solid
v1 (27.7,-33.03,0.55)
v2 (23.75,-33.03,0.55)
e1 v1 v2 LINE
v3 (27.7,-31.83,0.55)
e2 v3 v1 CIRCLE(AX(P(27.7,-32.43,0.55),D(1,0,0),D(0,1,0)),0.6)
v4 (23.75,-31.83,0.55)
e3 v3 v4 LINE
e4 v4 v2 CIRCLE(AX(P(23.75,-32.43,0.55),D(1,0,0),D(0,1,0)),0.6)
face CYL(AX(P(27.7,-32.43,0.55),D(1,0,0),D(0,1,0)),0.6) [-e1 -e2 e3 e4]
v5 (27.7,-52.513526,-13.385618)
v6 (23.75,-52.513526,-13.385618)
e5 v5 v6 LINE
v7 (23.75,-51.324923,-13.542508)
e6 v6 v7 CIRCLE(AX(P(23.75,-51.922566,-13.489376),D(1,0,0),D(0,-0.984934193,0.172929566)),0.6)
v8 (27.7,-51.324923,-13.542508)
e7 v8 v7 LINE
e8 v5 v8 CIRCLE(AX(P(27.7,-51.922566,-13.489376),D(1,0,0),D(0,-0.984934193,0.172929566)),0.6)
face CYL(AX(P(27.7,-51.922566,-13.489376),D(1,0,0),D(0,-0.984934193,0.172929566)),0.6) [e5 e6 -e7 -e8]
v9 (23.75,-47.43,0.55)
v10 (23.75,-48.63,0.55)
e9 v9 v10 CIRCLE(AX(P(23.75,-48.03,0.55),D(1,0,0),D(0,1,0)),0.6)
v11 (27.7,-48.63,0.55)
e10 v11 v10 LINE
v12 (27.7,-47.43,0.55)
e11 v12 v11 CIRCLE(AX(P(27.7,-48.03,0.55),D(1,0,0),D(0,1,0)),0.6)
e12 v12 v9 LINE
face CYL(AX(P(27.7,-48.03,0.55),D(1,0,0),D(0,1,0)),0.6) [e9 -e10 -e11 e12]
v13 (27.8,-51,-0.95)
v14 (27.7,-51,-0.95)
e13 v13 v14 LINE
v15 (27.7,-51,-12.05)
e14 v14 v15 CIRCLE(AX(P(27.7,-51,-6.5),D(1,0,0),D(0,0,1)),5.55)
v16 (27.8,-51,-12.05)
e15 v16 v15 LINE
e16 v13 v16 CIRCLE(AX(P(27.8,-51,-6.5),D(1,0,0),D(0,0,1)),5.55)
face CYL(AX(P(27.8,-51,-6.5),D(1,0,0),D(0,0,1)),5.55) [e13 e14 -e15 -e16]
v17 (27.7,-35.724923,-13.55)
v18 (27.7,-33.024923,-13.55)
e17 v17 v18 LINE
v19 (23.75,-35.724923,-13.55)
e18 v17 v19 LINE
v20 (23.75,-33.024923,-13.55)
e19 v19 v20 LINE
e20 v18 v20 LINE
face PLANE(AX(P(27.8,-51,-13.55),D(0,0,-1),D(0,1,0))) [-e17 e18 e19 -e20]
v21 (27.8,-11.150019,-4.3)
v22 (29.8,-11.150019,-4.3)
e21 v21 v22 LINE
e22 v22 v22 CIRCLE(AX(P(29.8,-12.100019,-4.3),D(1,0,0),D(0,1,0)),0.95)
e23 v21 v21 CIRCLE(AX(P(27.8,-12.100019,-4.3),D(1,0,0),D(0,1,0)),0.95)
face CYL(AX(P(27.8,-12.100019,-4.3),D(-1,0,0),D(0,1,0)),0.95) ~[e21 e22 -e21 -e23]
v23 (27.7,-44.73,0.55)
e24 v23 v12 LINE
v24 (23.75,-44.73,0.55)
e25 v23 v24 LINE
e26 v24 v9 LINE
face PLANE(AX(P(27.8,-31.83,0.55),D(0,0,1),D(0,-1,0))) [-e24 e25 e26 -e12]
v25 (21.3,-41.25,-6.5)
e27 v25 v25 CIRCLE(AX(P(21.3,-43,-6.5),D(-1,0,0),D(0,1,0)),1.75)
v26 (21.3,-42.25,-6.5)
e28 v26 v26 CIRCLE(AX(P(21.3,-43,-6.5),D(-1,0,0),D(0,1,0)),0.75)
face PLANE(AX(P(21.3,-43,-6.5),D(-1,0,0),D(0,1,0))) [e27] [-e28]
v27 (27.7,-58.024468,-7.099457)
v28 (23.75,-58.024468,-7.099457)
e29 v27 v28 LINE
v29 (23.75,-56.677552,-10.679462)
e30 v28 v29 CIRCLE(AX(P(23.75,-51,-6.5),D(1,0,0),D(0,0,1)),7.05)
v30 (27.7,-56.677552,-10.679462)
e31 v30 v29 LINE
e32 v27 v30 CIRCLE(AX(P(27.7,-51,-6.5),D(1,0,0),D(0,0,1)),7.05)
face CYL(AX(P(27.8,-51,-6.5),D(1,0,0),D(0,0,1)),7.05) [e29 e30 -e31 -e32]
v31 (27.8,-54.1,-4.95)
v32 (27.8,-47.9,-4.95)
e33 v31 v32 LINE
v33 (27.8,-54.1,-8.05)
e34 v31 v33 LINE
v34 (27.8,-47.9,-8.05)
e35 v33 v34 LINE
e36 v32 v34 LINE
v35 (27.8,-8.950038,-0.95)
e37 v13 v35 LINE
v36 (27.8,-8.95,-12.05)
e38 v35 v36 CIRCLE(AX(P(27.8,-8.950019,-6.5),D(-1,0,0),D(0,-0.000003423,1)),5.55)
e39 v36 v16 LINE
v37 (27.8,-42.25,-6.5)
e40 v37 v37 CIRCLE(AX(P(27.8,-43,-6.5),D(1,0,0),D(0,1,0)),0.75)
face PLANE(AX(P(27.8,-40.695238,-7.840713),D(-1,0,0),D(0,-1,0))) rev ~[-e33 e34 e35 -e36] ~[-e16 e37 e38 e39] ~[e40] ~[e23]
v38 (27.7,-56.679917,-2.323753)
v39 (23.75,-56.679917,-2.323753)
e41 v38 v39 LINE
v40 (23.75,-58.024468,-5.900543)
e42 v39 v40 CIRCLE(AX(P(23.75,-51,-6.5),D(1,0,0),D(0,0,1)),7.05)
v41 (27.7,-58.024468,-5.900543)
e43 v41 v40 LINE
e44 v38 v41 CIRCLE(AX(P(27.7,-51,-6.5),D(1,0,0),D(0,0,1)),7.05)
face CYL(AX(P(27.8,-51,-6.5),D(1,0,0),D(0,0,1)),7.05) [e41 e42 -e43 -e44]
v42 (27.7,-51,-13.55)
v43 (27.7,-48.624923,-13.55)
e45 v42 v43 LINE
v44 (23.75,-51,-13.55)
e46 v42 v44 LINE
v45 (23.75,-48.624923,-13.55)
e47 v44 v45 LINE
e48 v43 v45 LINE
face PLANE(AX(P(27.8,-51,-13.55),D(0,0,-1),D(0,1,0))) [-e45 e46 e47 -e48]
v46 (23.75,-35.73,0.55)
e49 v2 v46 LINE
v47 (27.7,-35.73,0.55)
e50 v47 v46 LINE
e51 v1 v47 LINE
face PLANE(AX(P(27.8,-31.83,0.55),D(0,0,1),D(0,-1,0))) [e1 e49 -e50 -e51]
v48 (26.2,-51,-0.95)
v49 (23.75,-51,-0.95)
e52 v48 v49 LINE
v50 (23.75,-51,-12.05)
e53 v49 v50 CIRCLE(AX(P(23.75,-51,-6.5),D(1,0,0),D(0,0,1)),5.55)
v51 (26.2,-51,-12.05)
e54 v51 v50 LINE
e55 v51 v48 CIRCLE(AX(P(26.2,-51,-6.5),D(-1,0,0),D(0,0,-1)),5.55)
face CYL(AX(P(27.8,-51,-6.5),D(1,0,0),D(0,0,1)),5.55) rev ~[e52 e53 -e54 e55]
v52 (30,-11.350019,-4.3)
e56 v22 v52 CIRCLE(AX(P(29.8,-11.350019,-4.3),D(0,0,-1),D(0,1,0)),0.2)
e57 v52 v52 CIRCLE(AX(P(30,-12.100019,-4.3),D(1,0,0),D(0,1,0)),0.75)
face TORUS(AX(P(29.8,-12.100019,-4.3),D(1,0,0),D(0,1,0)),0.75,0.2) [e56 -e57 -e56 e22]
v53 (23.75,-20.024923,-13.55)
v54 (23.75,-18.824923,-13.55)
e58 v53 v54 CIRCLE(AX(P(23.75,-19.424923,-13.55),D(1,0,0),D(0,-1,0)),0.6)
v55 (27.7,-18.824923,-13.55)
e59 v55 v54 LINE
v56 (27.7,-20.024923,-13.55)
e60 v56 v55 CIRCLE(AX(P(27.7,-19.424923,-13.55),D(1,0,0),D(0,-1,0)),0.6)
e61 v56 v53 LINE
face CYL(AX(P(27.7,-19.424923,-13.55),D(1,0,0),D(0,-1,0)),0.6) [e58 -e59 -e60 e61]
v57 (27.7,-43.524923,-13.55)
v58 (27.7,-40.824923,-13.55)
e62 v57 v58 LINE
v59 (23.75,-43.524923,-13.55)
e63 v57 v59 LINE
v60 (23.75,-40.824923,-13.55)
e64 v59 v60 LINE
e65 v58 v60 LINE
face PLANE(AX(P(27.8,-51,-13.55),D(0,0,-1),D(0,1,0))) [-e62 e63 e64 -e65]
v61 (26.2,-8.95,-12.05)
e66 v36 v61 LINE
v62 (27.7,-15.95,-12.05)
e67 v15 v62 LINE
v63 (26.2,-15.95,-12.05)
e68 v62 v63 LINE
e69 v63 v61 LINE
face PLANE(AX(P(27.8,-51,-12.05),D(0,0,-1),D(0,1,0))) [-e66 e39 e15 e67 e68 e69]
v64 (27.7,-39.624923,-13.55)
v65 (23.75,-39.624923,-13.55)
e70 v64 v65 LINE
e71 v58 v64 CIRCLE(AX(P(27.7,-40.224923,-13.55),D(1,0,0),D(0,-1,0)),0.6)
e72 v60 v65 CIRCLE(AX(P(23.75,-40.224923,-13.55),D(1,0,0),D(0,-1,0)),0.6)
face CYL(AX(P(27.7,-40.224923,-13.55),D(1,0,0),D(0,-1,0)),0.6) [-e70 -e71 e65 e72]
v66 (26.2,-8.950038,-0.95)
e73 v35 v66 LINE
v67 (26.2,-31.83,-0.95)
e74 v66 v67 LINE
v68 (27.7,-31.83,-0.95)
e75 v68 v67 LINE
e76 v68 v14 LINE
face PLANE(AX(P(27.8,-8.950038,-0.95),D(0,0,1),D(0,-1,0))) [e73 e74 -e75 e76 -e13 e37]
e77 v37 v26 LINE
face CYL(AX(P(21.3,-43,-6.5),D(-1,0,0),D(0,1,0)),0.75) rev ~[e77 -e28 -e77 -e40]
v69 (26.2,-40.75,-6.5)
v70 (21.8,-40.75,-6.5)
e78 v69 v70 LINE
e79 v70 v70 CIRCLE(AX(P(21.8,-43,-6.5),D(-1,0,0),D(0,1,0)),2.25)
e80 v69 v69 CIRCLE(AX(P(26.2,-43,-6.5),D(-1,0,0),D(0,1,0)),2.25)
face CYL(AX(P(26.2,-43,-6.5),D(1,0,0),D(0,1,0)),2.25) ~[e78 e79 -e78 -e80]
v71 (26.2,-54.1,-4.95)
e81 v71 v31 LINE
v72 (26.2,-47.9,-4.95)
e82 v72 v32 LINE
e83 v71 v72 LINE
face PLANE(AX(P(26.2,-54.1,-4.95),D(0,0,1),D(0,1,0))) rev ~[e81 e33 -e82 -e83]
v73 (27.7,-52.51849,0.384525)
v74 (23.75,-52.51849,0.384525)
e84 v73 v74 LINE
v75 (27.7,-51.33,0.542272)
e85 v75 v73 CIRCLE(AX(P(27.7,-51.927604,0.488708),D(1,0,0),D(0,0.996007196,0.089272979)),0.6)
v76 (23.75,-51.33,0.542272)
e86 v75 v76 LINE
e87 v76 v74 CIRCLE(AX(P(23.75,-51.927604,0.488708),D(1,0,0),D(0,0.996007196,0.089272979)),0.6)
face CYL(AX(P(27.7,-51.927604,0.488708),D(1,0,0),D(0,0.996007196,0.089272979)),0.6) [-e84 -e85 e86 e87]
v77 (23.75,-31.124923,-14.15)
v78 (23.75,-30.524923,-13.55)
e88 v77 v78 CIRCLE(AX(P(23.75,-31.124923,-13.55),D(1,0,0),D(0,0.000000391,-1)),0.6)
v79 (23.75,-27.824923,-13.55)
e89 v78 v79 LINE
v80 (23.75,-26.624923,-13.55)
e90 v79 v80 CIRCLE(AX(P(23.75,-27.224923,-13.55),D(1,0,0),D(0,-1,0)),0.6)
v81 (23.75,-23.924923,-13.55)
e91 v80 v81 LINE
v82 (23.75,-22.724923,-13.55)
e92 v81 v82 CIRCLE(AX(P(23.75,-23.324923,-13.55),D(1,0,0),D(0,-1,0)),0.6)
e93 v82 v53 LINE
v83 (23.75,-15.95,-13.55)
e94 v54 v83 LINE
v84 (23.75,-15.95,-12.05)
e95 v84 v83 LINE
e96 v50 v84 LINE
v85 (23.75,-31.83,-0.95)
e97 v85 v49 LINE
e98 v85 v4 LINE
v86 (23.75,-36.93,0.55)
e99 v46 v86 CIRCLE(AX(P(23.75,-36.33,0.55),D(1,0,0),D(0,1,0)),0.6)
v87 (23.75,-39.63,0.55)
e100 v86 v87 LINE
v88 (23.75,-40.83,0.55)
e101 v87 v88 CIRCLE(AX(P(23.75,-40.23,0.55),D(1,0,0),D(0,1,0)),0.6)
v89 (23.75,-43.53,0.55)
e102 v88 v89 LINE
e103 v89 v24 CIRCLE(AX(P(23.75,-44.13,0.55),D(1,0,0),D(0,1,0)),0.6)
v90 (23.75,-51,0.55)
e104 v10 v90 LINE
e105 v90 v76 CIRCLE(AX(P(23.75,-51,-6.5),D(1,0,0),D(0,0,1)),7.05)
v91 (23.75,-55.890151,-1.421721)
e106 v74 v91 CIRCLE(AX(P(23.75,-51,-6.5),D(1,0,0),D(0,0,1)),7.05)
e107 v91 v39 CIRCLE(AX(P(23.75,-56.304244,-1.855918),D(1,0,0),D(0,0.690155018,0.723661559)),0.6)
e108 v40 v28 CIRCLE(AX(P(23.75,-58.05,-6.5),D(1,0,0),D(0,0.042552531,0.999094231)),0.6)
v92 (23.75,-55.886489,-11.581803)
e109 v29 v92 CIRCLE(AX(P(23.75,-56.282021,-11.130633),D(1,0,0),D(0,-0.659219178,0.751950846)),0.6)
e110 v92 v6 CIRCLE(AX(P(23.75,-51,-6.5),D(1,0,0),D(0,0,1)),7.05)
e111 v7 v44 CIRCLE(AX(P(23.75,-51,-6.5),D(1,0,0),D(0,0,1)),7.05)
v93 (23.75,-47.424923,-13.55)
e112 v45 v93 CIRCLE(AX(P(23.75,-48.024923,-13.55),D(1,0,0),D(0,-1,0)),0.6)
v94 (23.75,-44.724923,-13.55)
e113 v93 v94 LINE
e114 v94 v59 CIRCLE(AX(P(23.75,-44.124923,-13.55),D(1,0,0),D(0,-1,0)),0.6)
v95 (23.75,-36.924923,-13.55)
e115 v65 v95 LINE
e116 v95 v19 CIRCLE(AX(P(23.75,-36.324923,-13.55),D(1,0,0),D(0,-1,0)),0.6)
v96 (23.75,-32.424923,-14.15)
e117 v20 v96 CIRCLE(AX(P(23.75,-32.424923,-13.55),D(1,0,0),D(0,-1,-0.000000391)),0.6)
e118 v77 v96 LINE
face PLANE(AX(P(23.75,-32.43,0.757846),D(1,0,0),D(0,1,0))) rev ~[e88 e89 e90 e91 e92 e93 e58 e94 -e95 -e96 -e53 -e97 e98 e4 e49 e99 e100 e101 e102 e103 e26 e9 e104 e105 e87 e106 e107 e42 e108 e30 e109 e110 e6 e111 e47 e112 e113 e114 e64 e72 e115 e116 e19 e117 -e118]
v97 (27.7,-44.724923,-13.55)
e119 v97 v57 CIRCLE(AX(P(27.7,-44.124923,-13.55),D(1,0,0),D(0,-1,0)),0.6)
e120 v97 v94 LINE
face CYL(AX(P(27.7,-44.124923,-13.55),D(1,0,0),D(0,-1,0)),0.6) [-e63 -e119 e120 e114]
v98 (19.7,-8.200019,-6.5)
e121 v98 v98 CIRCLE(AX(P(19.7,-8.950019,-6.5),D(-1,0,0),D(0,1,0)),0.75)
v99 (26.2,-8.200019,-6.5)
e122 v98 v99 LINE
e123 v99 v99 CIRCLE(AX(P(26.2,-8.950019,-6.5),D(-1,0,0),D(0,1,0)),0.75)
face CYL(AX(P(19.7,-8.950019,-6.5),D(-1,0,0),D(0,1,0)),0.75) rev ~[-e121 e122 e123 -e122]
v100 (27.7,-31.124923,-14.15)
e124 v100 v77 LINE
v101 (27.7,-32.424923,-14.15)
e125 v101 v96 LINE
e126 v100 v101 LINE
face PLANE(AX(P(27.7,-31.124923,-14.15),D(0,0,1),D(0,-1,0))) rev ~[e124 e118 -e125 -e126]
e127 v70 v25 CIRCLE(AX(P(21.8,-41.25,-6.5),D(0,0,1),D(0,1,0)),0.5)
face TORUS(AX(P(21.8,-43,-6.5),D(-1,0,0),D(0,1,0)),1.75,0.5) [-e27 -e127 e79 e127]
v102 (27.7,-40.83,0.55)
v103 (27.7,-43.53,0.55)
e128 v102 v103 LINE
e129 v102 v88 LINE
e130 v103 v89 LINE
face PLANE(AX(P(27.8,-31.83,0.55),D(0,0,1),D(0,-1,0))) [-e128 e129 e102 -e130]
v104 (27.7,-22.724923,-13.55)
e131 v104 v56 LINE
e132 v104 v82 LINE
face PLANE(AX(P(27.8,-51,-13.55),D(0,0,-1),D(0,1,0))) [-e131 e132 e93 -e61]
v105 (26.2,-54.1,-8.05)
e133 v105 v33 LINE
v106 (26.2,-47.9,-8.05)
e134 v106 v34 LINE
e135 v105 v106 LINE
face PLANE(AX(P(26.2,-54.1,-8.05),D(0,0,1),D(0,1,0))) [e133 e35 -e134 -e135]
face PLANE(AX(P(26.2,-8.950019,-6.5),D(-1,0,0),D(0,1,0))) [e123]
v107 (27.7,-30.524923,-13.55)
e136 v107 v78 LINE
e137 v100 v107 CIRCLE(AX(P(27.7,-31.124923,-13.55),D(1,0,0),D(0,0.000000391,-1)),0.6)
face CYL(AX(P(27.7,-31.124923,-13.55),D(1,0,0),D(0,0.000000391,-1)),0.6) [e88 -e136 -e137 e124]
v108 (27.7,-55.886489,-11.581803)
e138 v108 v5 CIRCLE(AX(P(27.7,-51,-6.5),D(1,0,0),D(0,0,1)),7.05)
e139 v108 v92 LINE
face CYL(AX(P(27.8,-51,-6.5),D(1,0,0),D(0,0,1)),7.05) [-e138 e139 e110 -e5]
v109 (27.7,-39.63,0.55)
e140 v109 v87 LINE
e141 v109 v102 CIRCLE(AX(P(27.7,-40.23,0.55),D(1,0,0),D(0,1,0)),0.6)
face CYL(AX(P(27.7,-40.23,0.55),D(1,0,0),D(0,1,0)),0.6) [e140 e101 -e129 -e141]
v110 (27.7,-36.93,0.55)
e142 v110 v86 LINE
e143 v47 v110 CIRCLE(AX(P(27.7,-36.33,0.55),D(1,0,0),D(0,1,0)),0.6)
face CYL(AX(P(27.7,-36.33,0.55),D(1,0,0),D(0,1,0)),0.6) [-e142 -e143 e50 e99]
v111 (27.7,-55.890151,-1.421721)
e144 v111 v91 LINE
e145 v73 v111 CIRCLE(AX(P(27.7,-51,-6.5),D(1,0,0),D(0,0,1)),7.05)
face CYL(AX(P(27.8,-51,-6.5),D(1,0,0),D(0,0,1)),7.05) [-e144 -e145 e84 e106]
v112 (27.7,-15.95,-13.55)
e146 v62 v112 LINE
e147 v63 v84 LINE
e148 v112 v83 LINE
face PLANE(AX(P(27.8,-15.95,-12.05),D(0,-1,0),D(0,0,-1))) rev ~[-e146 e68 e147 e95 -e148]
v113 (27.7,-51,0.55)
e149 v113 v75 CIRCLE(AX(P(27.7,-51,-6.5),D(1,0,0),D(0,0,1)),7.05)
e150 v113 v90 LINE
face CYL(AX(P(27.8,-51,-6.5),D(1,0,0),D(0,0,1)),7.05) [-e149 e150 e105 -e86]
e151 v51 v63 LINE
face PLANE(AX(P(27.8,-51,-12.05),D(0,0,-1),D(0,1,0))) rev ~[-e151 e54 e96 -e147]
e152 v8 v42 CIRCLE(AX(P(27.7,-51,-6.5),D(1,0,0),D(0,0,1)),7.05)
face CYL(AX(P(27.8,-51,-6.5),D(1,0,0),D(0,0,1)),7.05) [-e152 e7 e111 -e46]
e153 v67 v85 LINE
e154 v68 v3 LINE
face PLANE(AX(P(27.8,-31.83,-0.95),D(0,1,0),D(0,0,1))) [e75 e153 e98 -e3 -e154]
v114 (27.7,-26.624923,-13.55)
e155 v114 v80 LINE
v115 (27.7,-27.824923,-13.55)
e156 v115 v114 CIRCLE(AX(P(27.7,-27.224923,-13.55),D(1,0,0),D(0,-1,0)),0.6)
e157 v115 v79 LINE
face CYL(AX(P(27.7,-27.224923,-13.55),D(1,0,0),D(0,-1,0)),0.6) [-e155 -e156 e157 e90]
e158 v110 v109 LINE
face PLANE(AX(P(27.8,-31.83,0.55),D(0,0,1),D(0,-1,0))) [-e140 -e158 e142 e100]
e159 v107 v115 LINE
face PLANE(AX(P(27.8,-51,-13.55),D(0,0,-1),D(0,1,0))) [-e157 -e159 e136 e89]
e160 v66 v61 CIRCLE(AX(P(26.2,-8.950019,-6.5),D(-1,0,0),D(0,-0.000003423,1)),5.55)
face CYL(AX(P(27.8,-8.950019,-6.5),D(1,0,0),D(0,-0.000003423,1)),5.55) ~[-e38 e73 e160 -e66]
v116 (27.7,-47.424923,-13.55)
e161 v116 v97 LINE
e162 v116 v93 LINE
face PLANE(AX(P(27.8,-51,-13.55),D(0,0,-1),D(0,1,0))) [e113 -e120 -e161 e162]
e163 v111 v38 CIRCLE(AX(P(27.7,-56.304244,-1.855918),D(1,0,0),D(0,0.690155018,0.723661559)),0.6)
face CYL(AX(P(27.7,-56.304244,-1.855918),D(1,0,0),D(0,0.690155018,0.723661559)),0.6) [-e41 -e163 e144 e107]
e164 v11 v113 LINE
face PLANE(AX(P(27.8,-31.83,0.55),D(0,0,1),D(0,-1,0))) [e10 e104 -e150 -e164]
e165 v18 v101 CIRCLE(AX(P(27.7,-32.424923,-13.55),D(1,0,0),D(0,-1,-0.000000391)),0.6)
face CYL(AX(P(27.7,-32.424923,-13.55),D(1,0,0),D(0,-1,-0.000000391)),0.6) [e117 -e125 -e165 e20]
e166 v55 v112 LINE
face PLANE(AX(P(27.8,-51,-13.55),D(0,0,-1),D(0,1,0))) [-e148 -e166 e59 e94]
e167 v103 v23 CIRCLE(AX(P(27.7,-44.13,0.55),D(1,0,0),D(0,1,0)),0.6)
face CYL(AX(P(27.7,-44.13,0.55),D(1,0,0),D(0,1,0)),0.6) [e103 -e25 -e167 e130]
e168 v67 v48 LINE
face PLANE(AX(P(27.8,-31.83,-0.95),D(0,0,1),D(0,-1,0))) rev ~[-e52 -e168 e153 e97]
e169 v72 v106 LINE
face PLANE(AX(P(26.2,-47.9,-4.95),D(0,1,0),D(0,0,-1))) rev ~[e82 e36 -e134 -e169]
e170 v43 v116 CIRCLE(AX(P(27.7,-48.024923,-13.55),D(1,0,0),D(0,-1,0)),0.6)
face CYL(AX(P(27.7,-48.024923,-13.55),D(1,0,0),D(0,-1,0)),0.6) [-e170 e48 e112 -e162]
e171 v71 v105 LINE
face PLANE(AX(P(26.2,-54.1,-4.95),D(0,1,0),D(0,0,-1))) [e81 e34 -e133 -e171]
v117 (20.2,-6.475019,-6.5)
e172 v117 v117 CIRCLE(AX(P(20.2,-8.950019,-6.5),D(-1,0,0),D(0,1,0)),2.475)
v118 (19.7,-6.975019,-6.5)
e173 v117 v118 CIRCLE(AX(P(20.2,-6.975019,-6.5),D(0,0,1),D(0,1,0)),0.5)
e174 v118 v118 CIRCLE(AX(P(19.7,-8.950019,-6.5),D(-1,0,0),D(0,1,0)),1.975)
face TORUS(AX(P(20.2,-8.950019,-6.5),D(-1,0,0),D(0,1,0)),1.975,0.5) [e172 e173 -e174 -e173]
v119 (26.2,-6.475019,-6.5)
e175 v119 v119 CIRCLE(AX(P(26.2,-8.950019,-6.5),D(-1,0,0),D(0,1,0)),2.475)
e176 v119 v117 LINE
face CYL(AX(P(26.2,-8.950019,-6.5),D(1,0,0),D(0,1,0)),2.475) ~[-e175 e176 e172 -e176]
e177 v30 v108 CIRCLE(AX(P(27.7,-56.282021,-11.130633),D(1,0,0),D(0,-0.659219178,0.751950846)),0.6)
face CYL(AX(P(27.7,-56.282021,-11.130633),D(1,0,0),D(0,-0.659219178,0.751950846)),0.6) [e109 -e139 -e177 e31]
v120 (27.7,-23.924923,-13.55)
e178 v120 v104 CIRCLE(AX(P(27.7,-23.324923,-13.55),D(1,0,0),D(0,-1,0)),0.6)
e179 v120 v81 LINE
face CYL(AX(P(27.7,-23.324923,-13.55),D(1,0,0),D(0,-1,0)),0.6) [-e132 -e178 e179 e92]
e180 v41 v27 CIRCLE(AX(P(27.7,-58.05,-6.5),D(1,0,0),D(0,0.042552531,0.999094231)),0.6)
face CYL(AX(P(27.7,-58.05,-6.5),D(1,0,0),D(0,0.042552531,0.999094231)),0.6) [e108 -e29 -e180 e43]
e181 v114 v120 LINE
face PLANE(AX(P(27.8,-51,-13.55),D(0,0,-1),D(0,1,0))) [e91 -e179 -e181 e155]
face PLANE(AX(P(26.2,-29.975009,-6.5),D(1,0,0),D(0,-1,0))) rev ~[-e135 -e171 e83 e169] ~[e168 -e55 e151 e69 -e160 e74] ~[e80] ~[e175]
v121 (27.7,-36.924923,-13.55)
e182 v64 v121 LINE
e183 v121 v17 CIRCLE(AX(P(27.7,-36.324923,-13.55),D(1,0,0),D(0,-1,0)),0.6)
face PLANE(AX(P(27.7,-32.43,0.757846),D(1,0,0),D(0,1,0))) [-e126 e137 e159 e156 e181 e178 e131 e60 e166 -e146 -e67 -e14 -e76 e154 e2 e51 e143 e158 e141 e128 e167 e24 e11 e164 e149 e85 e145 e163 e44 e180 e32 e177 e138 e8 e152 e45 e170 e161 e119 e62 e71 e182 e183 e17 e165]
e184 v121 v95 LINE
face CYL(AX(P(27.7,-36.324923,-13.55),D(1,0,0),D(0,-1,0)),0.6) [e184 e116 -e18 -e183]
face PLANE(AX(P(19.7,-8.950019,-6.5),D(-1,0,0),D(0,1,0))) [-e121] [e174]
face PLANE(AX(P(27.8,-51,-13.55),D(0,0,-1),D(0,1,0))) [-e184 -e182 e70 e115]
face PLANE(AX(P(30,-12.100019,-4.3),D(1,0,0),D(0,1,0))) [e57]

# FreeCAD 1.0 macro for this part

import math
import FreeCAD as App
import Part
import Sketcher
from FreeCAD import Vector
Q = App.Units.Quantity


def edges_at(feature, points):
    """Names of the edges that pass closest to the given points."""
    edges = feature.Shape.Edges
    near = lambda p: min(range(len(edges)), key=lambda i: edges[i].distToShape(Part.Vertex(*p))[0])
    return sorted({f"Edge{near(p) + 1}" for p in points})

doc = App.newDocument("Part")
params = doc.addObject("Spreadsheet::Sheet", "Params")
for row, (alias, value) in enumerate([
    ("sketch1_radius", "5.55 mm"),
    ("sketch1_width", "42.05 mm"),
    ("pad1_length", "1.6 mm"),
    ("sketch2_radius", "7.05 mm"),
    ("sketch2_radius2", "5.55 mm"),
    ("sketch2_width", "19.17 mm"),
    ("sketch2_width2", "35.05 mm"),
    ("pad2_length", "4.05 mm"),
    ("sketch3_radius", "7.05 mm"),
    ("sketch3_radius2", "5.55 mm"),
    ("sketch3_width", "19.17 mm"),
    ("sketch3_width2", "35.05 mm"),
    ("pocket1_length", "0.1 mm"),
    ("sketch4_diameter", "1.5 mm"),
    ("sketch4_width", "6 mm"),
    ("sketch4_height", "3 mm"),
    ("pocket2_length", "1.6 mm"),
    ("sketch5_radius", "0.6 mm"),
    ("sketch5_width", "1.3 mm"),
    ("pad3_length", "3.95 mm"),
    ("sketch6_diameter", "4.5 mm"),
    ("pad4_length", "4.9 mm"),
    ("sketch7_diameter", "1.5 mm"),
    ("pocket3_length", "4.9 mm"),
    ("sketch8_diameter", "4.95 mm"),
    ("pad5_length", "6.5 mm"),
    ("sketch9_diameter", "1.5 mm"),
    ("pocket4_length", "6.5 mm"),
    ("fillet_radius", "0.5 mm"),
    ("sketch10_diameter", "1.9 mm"),
    ("pad6_length", "2.2 mm"),
    ("fillet2_radius", "0.2 mm"),
    ("sketch11_width", "6.2 mm"),
    ("sketch11_height", "3.1 mm"),
    ("pocket5_length", "5 mm"),
], start=1):
    params.set(f"A{row}", alias)
    params.set(f"B{row}", "=" + value)
    params.setAlias(f"B{row}", alias)

body = doc.addObject("PartDesign::Body", "Body")

# Sketch on XY plane
sketch1 = body.newObject("Sketcher::SketchObject", "Sketch")
sketch1.AttachmentSupport = (doc.getObject("XY_Plane"), [""])
sketch1.MapMode = "FlatFace"
sketch1.addGeometry(Part.LineSegment(Vector(42.05, 5.55, 0), Vector(0, 5.55, 0)), False)
sketch1.addGeometry(Part.ArcOfCircle(Part.Circle(Vector(0, 0, 0), Vector(0, 0, 1), 5.55), math.radians(90), math.radians(270)), False)
sketch1.addGeometry(Part.LineSegment(Vector(0, -5.55, 0), Vector(42.049962, -5.55, 0)), False)
sketch1.addGeometry(Part.ArcOfCircle(Part.Circle(Vector(42.049981, 0, 0), Vector(0, 0, 1), 5.55), math.radians(-90.000196), math.radians(89.999804)), False)
sketch1.addConstraint(Sketcher.Constraint("Tangent", 0, 2, 1, 1))
sketch1.addConstraint(Sketcher.Constraint("Tangent", 1, 2, 2, 1))
sketch1.addConstraint(Sketcher.Constraint("Coincident", 2, 2, 3, 1))
sketch1.addConstraint(Sketcher.Constraint("Coincident", 3, 2, 0, 1))
sketch1.addConstraint(Sketcher.Constraint("Horizontal", 0))
sketch1.addConstraint(Sketcher.Constraint("Horizontal", 2))
sketch1.addConstraint(Sketcher.Constraint("Coincident", 1, 3, -1, 1))
sketch1.addConstraint(Sketcher.Constraint("Radius", 1, Q("5.55 mm")))
sketch1.addConstraint(Sketcher.Constraint("DistanceX", 0, 2, 0, 1, Q("42.05 mm")))
sketch1.addConstraint(Sketcher.Constraint("DistanceX", 2, 1, 2, 2, Q("42.049962 mm")))
sketch1.addConstraint(Sketcher.Constraint("DistanceX", -1, 1, 3, 3, Q("42.049981 mm")))
sketch1.setExpression("Constraints[7]", "Params.sketch1_radius")
sketch1.setExpression("Constraints[8]", "Params.sketch1_width")
pad1 = body.newObject("PartDesign::Pad", "Pad")
pad1.Profile = sketch1
pad1.setExpression("Length", "Params.pad1_length")

# Sketch on XY plane
sketch2 = body.newObject("Sketcher::SketchObject", "Sketch001")
sketch2.AttachmentSupport = (doc.getObject("XY_Plane"), [""])
sketch2.MapMode = "FlatFace"
sketch2.addGeometry(Part.LineSegment(Vector(0, -5.55, 0), Vector(19.17, -5.55, 0)), False)
sketch2.addGeometry(Part.LineSegment(Vector(19.17, -5.55, 0), Vector(19.17, -7.05, 0)), False)
sketch2.addGeometry(Part.LineSegment(Vector(19.17, -7.05, 0), Vector(0, -7.05, 0)), False)
sketch2.addGeometry(Part.ArcOfCircle(Part.Circle(Vector(0, 0, 0), Vector(0, 0, 1), 7.05), math.radians(90), math.radians(270)), False)
sketch2.addGeometry(Part.LineSegment(Vector(0, 7.05, 0), Vector(35.05, 7.05, 0)), False)
sketch2.addGeometry(Part.LineSegment(Vector(35.05, 7.05, 0), Vector(35.05, 5.55, 0)), False)
sketch2.addGeometry(Part.LineSegment(Vector(35.05, 5.55, 0), Vector(0, 5.55, 0)), False)
sketch2.addGeometry(Part.ArcOfCircle(Part.Circle(Vector(0, 0, 0), Vector(0, 0, 1), 5.55), math.radians(90), math.radians(270)), False)
sketch2.addConstraint(Sketcher.Constraint("Coincident", 0, 2, 1, 1))
sketch2.addConstraint(Sketcher.Constraint("Coincident", 1, 2, 2, 1))
sketch2.addConstraint(Sketcher.Constraint("Tangent", 2, 2, 3, 2))
sketch2.addConstraint(Sketcher.Constraint("Tangent", 3, 1, 4, 1))
sketch2.addConstraint(Sketcher.Constraint("Coincident", 4, 2, 5, 1))
sketch2.addConstraint(Sketcher.Constraint("Coincident", 5, 2, 6, 1))
sketch2.addConstraint(Sketcher.Constraint("Tangent", 6, 2, 7, 1))
sketch2.addConstraint(Sketcher.Constraint("Tangent", 7, 2, 0, 1))
sketch2.addConstraint(Sketcher.Constraint("Horizontal", 0))
sketch2.addConstraint(Sketcher.Constraint("Vertical", 1))
sketch2.addConstraint(Sketcher.Constraint("Horizontal", 2))
sketch2.addConstraint(Sketcher.Constraint("Horizontal", 4))
sketch2.addConstraint(Sketcher.Constraint("Vertical", 5))
sketch2.addConstraint(Sketcher.Constraint("Horizontal", 6))
sketch2.addConstraint(Sketcher.Constraint("Coincident", 3, 3, -1, 1))
sketch2.addConstraint(Sketcher.Constraint("Coincident", 7, 3, -1, 1))
sketch2.addConstraint(Sketcher.Constraint("Radius", 3, Q("7.05 mm")))
sketch2.addConstraint(Sketcher.Constraint("Radius", 7, Q("5.55 mm")))
sketch2.addConstraint(Sketcher.Constraint("DistanceX", 0, 1, 0, 2, Q("19.17 mm")))
sketch2.addConstraint(Sketcher.Constraint("DistanceX", 4, 1, 4, 2, Q("35.05 mm")))
sketch2.setExpression("Constraints[16]", "Params.sketch2_radius")
sketch2.setExpression("Constraints[17]", "Params.sketch2_radius2")
sketch2.setExpression("Constraints[18]", "Params.sketch2_width")
sketch2.setExpression("Constraints[19]", "Params.sketch2_width2")
pad2 = body.newObject("PartDesign::Pad", "Pad001")
pad2.Profile = sketch2
pad2.setExpression("Length", "Params.pad2_length")

# Sketch on XY plane
sketch3 = body.newObject("Sketcher::SketchObject", "Sketch002")
sketch3.AttachmentSupport = (doc.getObject("XY_Plane"), [""])
sketch3.MapMode = "FlatFace"
sketch3.addGeometry(Part.LineSegment(Vector(0, -5.55, 0), Vector(19.17, -5.55, 0)), False)
sketch3.addGeometry(Part.LineSegment(Vector(19.17, -5.55, 0), Vector(19.17, -7.05, 0)), False)
sketch3.addGeometry(Part.LineSegment(Vector(19.17, -7.05, 0), Vector(0, -7.05, 0)), False)
sketch3.addGeometry(Part.ArcOfCircle(Part.Circle(Vector(0, 0, 0), Vector(0, 0, 1), 7.05), math.radians(90), math.radians(270)), False)
sketch3.addGeometry(Part.LineSegment(Vector(0, 7.05, 0), Vector(35.05, 7.05, 0)), False)
sketch3.addGeometry(Part.LineSegment(Vector(35.05, 7.05, 0), Vector(35.05, 5.55, 0)), False)
sketch3.addGeometry(Part.LineSegment(Vector(35.05, 5.55, 0), Vector(0, 5.55, 0)), False)
sketch3.addGeometry(Part.ArcOfCircle(Part.Circle(Vector(0, 0, 0), Vector(0, 0, 1), 5.55), math.radians(90), math.radians(270)), False)
sketch3.addConstraint(Sketcher.Constraint("Coincident", 0, 2, 1, 1))
sketch3.addConstraint(Sketcher.Constraint("Coincident", 1, 2, 2, 1))
sketch3.addConstraint(Sketcher.Constraint("Tangent", 2, 2, 3, 2))
sketch3.addConstraint(Sketcher.Constraint("Tangent", 3, 1, 4, 1))
sketch3.addConstraint(Sketcher.Constraint("Coincident", 4, 2, 5, 1))
sketch3.addConstraint(Sketcher.Constraint("Coincident", 5, 2, 6, 1))
sketch3.addConstraint(Sketcher.Constraint("Tangent", 6, 2, 7, 1))
sketch3.addConstraint(Sketcher.Constraint("Tangent", 7, 2, 0, 1))
sketch3.addConstraint(Sketcher.Constraint("Horizontal", 0))
sketch3.addConstraint(Sketcher.Constraint("Vertical", 1))
sketch3.addConstraint(Sketcher.Constraint("Horizontal", 2))
sketch3.addConstraint(Sketcher.Constraint("Horizontal", 4))
sketch3.addConstraint(Sketcher.Constraint("Vertical", 5))
sketch3.addConstraint(Sketcher.Constraint("Horizontal", 6))
sketch3.addConstraint(Sketcher.Constraint("Coincident", 3, 3, -1, 1))
sketch3.addConstraint(Sketcher.Constraint("Coincident", 7, 3, -1, 1))
sketch3.addConstraint(Sketcher.Constraint("Radius", 3, Q("7.05 mm")))
sketch3.addConstraint(Sketcher.Constraint("Radius", 7, Q("5.55 mm")))
sketch3.addConstraint(Sketcher.Constraint("DistanceX", 0, 1, 0, 2, Q("19.17 mm")))
sketch3.addConstraint(Sketcher.Constraint("DistanceX", 4, 1, 4, 2, Q("35.05 mm")))
sketch3.setExpression("Constraints[16]", "Params.sketch3_radius")
sketch3.setExpression("Constraints[17]", "Params.sketch3_radius2")
sketch3.setExpression("Constraints[18]", "Params.sketch3_width")
sketch3.setExpression("Constraints[19]", "Params.sketch3_width2")
pocket1 = body.newObject("PartDesign::Pocket", "Pocket")
pocket1.Profile = sketch3
pocket1.setExpression("Length", "Params.pocket1_length")
pocket1.Reversed = True

# Sketch on XY plane
sketch4 = body.newObject("Sketcher::SketchObject", "Sketch003")
sketch4.AttachmentSupport = (doc.getObject("XY_Plane"), [""])
sketch4.MapMode = "FlatFace"
sketch4.addGeometry(Part.Circle(Vector(8, 0, 0), Vector(0, 0, 1), 0.75), False)
sketch4.addGeometry(Part.LineSegment(Vector(-3, -1.5, 0), Vector(-3, 1.5, 0)), False)
sketch4.addGeometry(Part.LineSegment(Vector(-3, 1.5, 0), Vector(3, 1.5, 0)), False)
sketch4.addGeometry(Part.LineSegment(Vector(3, 1.5, 0), Vector(3, -1.5, 0)), False)
sketch4.addGeometry(Part.LineSegment(Vector(3, -1.5, 0), Vector(-3, -1.5, 0)), False)
sketch4.addConstraint(Sketcher.Constraint("Coincident", 1, 2, 2, 1))
sketch4.addConstraint(Sketcher.Constraint("Coincident", 2, 2, 3, 1))
sketch4.addConstraint(Sketcher.Constraint("Coincident", 3, 2, 4, 1))
sketch4.addConstraint(Sketcher.Constraint("Coincident", 4, 2, 1, 1))
sketch4.addConstraint(Sketcher.Constraint("Vertical", 1))
sketch4.addConstraint(Sketcher.Constraint("Horizontal", 2))
sketch4.addConstraint(Sketcher.Constraint("Vertical", 3))
sketch4.addConstraint(Sketcher.Constraint("Horizontal", 4))
sketch4.addConstraint(Sketcher.Constraint("Symmetric", 1, 2, 3, 2, -1, 1))
sketch4.addConstraint(Sketcher.Constraint("PointOnObject", 0, 3, -1))
sketch4.addConstraint(Sketcher.Constraint("Diameter", 0, Q("1.5 mm")))
sketch4.addConstraint(Sketcher.Constraint("DistanceX", 2, 1, 2, 2, Q("6 mm")))
sketch4.addConstraint(Sketcher.Constraint("DistanceY", 1, 1, 1, 2, Q("3 mm")))
sketch4.addConstraint(Sketcher.Constraint("DistanceX", -1, 1, 0, 3, Q("8 mm")))
sketch4.setExpression("Constraints[10]", "Params.sketch4_diameter")
sketch4.setExpression("Constraints[11]", "Params.sketch4_width")
sketch4.setExpression("Constraints[12]", "Params.sketch4_height")
pocket2 = body.newObject("PartDesign::Pocket", "Pocket001")
pocket2.Profile = sketch4
pocket2.setExpression("Length", "Params.pocket2_length")
pocket2.Reversed = True

# Sketch on XY plane
sketch5 = body.newObject("Sketcher::SketchObject", "Sketch004")
sketch5.AttachmentSupport = (doc.getObject("XY_Plane"), [""])
sketch5.MapMode = "FlatFace"
sketch5.AttachmentOffset = App.Placement(Vector(0, 0, 0.1), App.Rotation())
sketch5.addGeometry(Part.ArcOfCircle(Part.Circle(Vector(18.57, -7.05, 0), Vector(0, 0, 1), 0.6), math.radians(180), math.radians(360)), False)
sketch5.addGeometry(Part.LineSegment(Vector(17.97, -7.05, 0), Vector(19.17, -7.05, 0)), False)
sketch5.addGeometry(Part.ArcOfCircle(Part.Circle(Vector(14.67, -7.05, 0), Vector(0, 0, 1), 0.6), math.radians(180), math.radians(360)), False)
sketch5.addGeometry(Part.LineSegment(Vector(14.07, -7.05, 0), Vector(15.27, -7.05, 0)), False)
sketch5.addGeometry(Part.ArcOfCircle(Part.Circle(Vector(10.77, -7.05, 0), Vector(0, 0, 1), 0.6), math.radians(180), math.radians(360)), False)
sketch5.addGeometry(Part.LineSegment(Vector(10.17, -7.05, 0), Vector(11.37, -7.05, 0)), False)
sketch5.addGeometry(Part.ArcOfCircle(Part.Circle(Vector(6.87, -7.05, 0), Vector(0, 0, 1), 0.6), math.radians(180), math.radians(360)), False)
sketch5.addGeometry(Part.LineSegment(Vector(6.27, -7.05, 0), Vector(7.47, -7.05, 0)), False)
sketch5.addGeometry(Part.ArcOfCircle(Part.Circle(Vector(2.97, -7.05, 0), Vector(0, 0, 1), 0.6), math.radians(180), math.radians(360)), False)
sketch5.addGeometry(Part.LineSegment(Vector(2.37, -7.05, 0), Vector(3.57, -7.05, 0)), False)
sketch5.addGeometry(Part.ArcOfCircle(Part.Circle(Vector(-0.927604, -6.988708, 0), Vector(0, 0, 1), 0.6), math.radians(170.000552), math.radians(354.878217)), False)
sketch5.addGeometry(Part.LineSegment(Vector(-1.51849, -6.884525, 0), Vector(-0.33, -7.042272, 0)), False)
sketch5.addGeometry(Part.ArcOfCircle(Part.Circle(Vector(-5.304244, -4.644082, 0), Vector(0, 0, 1), 0.6), math.radians(128.764572), math.radians(313.642381)), False)
sketch5.addGeometry(Part.LineSegment(Vector(-5.679917, -4.176247, 0), Vector(-4.890151, -5.078279, 0)), False)
sketch5.addGeometry(Part.ArcOfCircle(Part.Circle(Vector(-7.05, 0, 0), Vector(0, 0, 1), 0.6), math.radians(87.561183), math.radians(272.438817)), False)
sketch5.addGeometry(Part.LineSegment(Vector(-7.024468, 0.599457, 0), Vector(-7.024468, -0.599457, 0)), False)
sketch5.addGeometry(Part.ArcOfCircle(Part.Circle(Vector(-5.28202, 4.630632, 0), Vector(0, 0, 1), 0.6), math.radians(48.75965), math.radians(228.75965)), False)
sketch5.addGeometry(Part.LineSegment(Vector(-4.886489, 5.081803, 0), Vector(-5.677552, 4.179462, 0)), False)
sketch5.addGeometry(Part.ArcOfCircle(Part.Circle(Vector(-0.922566, 6.989376, 0), Vector(0, 0, 1), 0.6), math.radians(5.080416), math.radians(189.958194)), False)
sketch5.addGeometry(Part.LineSegment(Vector(-0.324923, 7.042508, 0), Vector(-1.513526, 6.885618, 0)), False)
sketch5.addGeometry(Part.ArcOfCircle(Part.Circle(Vector(2.975077, 7.05, 0), Vector(0, 0, 1), 0.6), math.radians(0), math.radians(180)), False)
sketch5.addGeometry(Part.LineSegment(Vector(3.575077, 7.05, 0), Vector(2.375077, 7.05, 0)), False)
sketch5.addGeometry(Part.ArcOfCircle(Part.Circle(Vector(6.875077, 7.05, 0), Vector(0, 0, 1), 0.6), math.radians(0), math.radians(180)), False)
sketch5.addGeometry(Part.LineSegment(Vector(7.475077, 7.05, 0), Vector(6.275077, 7.05, 0)), False)
sketch5.addGeometry(Part.ArcOfCircle(Part.Circle(Vector(10.775077, 7.05, 0), Vector(0, 0, 1), 0.6), math.radians(0), math.radians(180)), False)
sketch5.addGeometry(Part.LineSegment(Vector(11.375077, 7.05, 0), Vector(10.175077, 7.05, 0)), False)
sketch5.addGeometry(Part.ArcOfCircle(Part.Circle(Vector(14.675077, 7.05, 0), Vector(0, 0, 1), 0.6), math.radians(0), math.radians(180)), False)
sketch5.addGeometry(Part.LineSegment(Vector(15.275077, 7.05, 0), Vector(14.075077, 7.05, 0)), False)
sketch5.addGeometry(Part.ArcOfCircle(Part.Circle(Vector(23.775077, 7.05, 0), Vector(0, 0, 1), 0.6), math.radians(0), math.radians(180)), False)
sketch5.addGeometry(Part.LineSegment(Vector(24.375077, 7.05, 0), Vector(23.175077, 7.05, 0)), False)
sketch5.addGeometry(Part.ArcOfCircle(Part.Circle(Vector(27.675077, 7.05, 0), Vector(0, 0, 1), 0.6), math.radians(0), math.radians(180)), False)
sketch5.addGeometry(Part.LineSegment(Vector(28.275077, 7.05, 0), Vector(27.075077, 7.05, 0)), False)
sketch5.addGeometry(Part.ArcOfCircle(Part.Circle(Vector(31.575077, 7.05, 0), Vector(0, 0, 1), 0.6), math.radians(0), math.radians(180)), False)
sketch5.addGeometry(Part.LineSegment(Vector(32.175077, 7.05, 0), Vector(30.975077, 7.05, 0)), False)
sketch5.addGeometry(Part.ArcOfCircle(Part.Circle(Vector(18.575077, 7.05, 0), Vector(0, 0, 1), 0.6), math.radians(90.000022), math.radians(179.999978)), False)
sketch5.addGeometry(Part.LineSegment(Vector(18.575077, 7.65, 0), Vector(19.875077, 7.65, 0)), False)
sketch5.addGeometry(Part.ArcOfCircle(Part.Circle(Vector(19.875077, 7.05, 0), Vector(0, 0, 1), 0.6), math.radians(0.000022), math.radians(89.999978)), False)
sketch5.addGeometry(Part.LineSegment(Vector(20.475077, 7.05, 0), Vector(17.975077, 7.05, 0)), False)
sketch5.addConstraint(Sketcher.Constraint("Coincident", 0, 1, 1, 1))
sketch5.addConstraint(Sketcher.Constraint("Coincident", 1, 2, 0, 2))
sketch5.addConstraint(Sketcher.Constraint("Coincident", 2, 1, 3, 1))
sketch5.addConstraint(Sketcher.Constraint("Coincident", 3, 2, 2, 2))
sketch5.addConstraint(Sketcher.Constraint("Coincident", 4, 1, 5, 1))
sketch5.addConstraint(Sketcher.Constraint("Coincident", 5, 2, 4, 2))
sketch5.addConstraint(Sketcher.Constraint("Coincident", 6, 1, 7, 1))
sketch5.addConstraint(Sketcher.Constraint("Coincident", 7, 2, 6, 2))
sketch5.addConstraint(Sketcher.Constraint("Coincident", 8, 1, 9, 1))
sketch5.addConstraint(Sketcher.Constraint("Coincident", 9, 2, 8, 2))
sketch5.addConstraint(Sketcher.Constraint("Coincident", 10, 1, 11, 1))
sketch5.addConstraint(Sketcher.Constraint("Coincident", 11, 2, 10, 2))
sketch5.addConstraint(Sketcher.Constraint("Coincident", 12, 1, 13, 1))
sketch5.addConstraint(Sketcher.Constraint("Coincident", 13, 2, 12, 2))
sketch5.addConstraint(Sketcher.Constraint("Coincident", 14, 1, 15, 1))
sketch5.addConstraint(Sketcher.Constraint("Coincident", 15, 2, 14, 2))
sketch5.addConstraint(Sketcher.Constraint("Coincident", 16, 1, 17, 1))
sketch5.addConstraint(Sketcher.Constraint("Coincident", 17, 2, 16, 2))
sketch5.addConstraint(Sketcher.Constraint("Coincident", 18, 1, 19, 1))
sketch5.addConstraint(Sketcher.Constraint("Coincident", 19, 2, 18, 2))
sketch5.addConstraint(Sketcher.Constraint("Coincident", 20, 1, 21, 1))
sketch5.addConstraint(Sketcher.Constraint("Coincident", 21, 2, 20, 2))
sketch5.addConstraint(Sketcher.Constraint("Coincident", 22, 1, 23, 1))
sketch5.addConstraint(Sketcher.Constraint("Coincident", 23, 2, 22, 2))
sketch5.addConstraint(Sketcher.Constraint("Coincident", 24, 1, 25, 1))
sketch5.addConstraint(Sketcher.Constraint("Coincident", 25, 2, 24, 2))
sketch5.addConstraint(Sketcher.Constraint("Coincident", 26, 1, 27, 1))
sketch5.addConstraint(Sketcher.Constraint("Coincident", 27, 2, 26, 2))
sketch5.addConstraint(Sketcher.Constraint("Coincident", 28, 1, 29, 1))
sketch5.addConstraint(Sketcher.Constraint("Coincident", 29, 2, 28, 2))
sketch5.addConstraint(Sketcher.Constraint("Coincident", 30, 1, 31, 1))
sketch5.addConstraint(Sketcher.Constraint("Coincident", 31, 2, 30, 2))
sketch5.addConstraint(Sketcher.Constraint("Coincident", 32, 1, 33, 1))
sketch5.addConstraint(Sketcher.Constraint("Coincident", 33, 2, 32, 2))
sketch5.addConstraint(Sketcher.Constraint("Tangent", 34, 1, 35, 1))
sketch5.addConstraint(Sketcher.Constraint("Tangent", 35, 2, 36, 2))
sketch5.addConstraint(Sketcher.Constraint("Coincident", 36, 1, 37, 1))
sketch5.addConstraint(Sketcher.Constraint("Coincident", 37, 2, 34, 2))
sketch5.addConstraint(Sketcher.Constraint("Horizontal", 1))
sketch5.addConstraint(Sketcher.Constraint("Horizontal", 3))
sketch5.addConstraint(Sketcher.Constraint("Horizontal", 5))
sketch5.addConstraint(Sketcher.Constraint("Horizontal", 7))
sketch5.addConstraint(Sketcher.Constraint("Horizontal", 9))
sketch5.addConstraint(Sketcher.Constraint("Vertical", 15))
sketch5.addConstraint(Sketcher.Constraint("Horizontal", 21))
sketch5.addConstraint(Sketcher.Constraint("Horizontal", 23))
sketch5.addConstraint(Sketcher.Constraint("Horizontal", 25))
sketch5.addConstraint(Sketcher.Constraint("Horizontal", 27))
sketch5.addConstraint(Sketcher.Constraint("Horizontal", 29))
sketch5.addConstraint(Sketcher.Constraint("Horizontal", 31))
sketch5.addConstraint(Sketcher.Constraint("Horizontal", 33))
sketch5.addConstraint(Sketcher.Constraint("Horizontal", 35))
sketch5.addConstraint(Sketcher.Constraint("Horizontal", 37))
sketch5.addConstraint(Sketcher.Constraint("Equal", 0, 2))
sketch5.addConstraint(Sketcher.Constraint("Equal", 2, 4))
sketch5.addConstraint(Sketcher.Constraint("Equal", 4, 6))
sketch5.addConstraint(Sketcher.Constraint("Equal", 6, 8))
sketch5.addConstraint(Sketcher.Constraint("Equal", 8, 10))
sketch5.addConstraint(Sketcher.Constraint("Equal", 10, 12))
sketch5.addConstraint(Sketcher.Constraint("Equal", 12, 14))
sketch5.addConstraint(Sketcher.Constraint("Equal", 14, 16))
sketch5.addConstraint(Sketcher.Constraint("Equal", 16, 18))
sketch5.addConstraint(Sketcher.Constraint("Equal", 18, 20))
sketch5.addConstraint(Sketcher.Constraint("Equal", 20, 22))
sketch5.addConstraint(Sketcher.Constraint("Equal", 22, 24))
sketch5.addConstraint(Sketcher.Constraint("Equal", 24, 26))
sketch5.addConstraint(Sketcher.Constraint("Equal", 26, 28))
sketch5.addConstraint(Sketcher.Constraint("Equal", 28, 30))
sketch5.addConstraint(Sketcher.Constraint("Equal", 30, 32))
sketch5.addConstraint(Sketcher.Constraint("Equal", 32, 34))
sketch5.addConstraint(Sketcher.Constraint("Equal", 34, 36))
sketch5.addConstraint(Sketcher.Constraint("PointOnObject", 14, 3, -1))
sketch5.addConstraint(Sketcher.Constraint("Horizontal", 0, 3, 2, 3))
sketch5.addConstraint(Sketcher.Constraint("Horizontal", 2, 3, 4, 3))
sketch5.addConstraint(Sketcher.Constraint("Horizontal", 4, 3, 6, 3))
sketch5.addConstraint(Sketcher.Constraint("Horizontal", 6, 3, 8, 3))
sketch5.addConstraint(Sketcher.Constraint("Horizontal", 20, 3, 22, 3))
sketch5.addConstraint(Sketcher.Constraint("Horizontal", 22, 3, 24, 3))
sketch5.addConstraint(Sketcher.Constraint("Horizontal", 24, 3, 26, 3))
sketch5.addConstraint(Sketcher.Constraint("Horizontal", 26, 3, 28, 3))
sketch5.addConstraint(Sketcher.Constraint("Horizontal", 28, 3, 30, 3))
sketch5.addConstraint(Sketcher.Constraint("Horizontal", 30, 3, 32, 3))
sketch5.addConstraint(Sketcher.Constraint("Horizontal", 32, 3, 34, 3))
sketch5.addConstraint(Sketcher.Constraint("Horizontal", 8, 3, 0, 1))
sketch5.addConstraint(Sketcher.Constraint("Horizontal", 1, 2, 2, 1))
sketch5.addConstraint(Sketcher.Constraint("Horizontal", 3, 2, 4, 1))
sketch5.addConstraint(Sketcher.Constraint("Horizontal", 5, 2, 6, 1))
sketch5.addConstraint(Sketcher.Constraint("Horizontal", 7, 2, 8, 1))
sketch5.addConstraint(Sketcher.Constraint("Horizontal", 36, 3, 20, 1))
sketch5.addConstraint(Sketcher.Constraint("Horizontal", 21, 2, 22, 1))
sketch5.addConstraint(Sketcher.Constraint("Horizontal", 23, 2, 24, 1))
sketch5.addConstraint(Sketcher.Constraint("Horizontal", 25, 2, 26, 1))
sketch5.addConstraint(Sketcher.Constraint("Horizontal", 27, 2, 28, 1))
sketch5.addConstraint(Sketcher.Constraint("Horizontal", 29, 2, 30, 1))
sketch5.addConstraint(Sketcher.Constraint("Horizontal", 31, 2, 32, 1))
sketch5.addConstraint(Sketcher.Constraint("Horizontal", 33, 2, 36, 1))
sketch5.addConstraint(Sketcher.Constraint("Equal", 11, 13))
sketch5.addConstraint(Sketcher.Constraint("Equal", 13, 19))
sketch5.addConstraint(Sketcher.Constraint("Radius", 0, Q("0.6 mm")))
sketch5.addConstraint(Sketcher.Constraint("DistanceX", 35, 1, 35, 2, Q("1.3 mm")))
sketch5.addConstraint(Sketcher.Constraint("DistanceX", 24, 3, 28, 3, Q("13 mm")))
sketch5.addConstraint(Sketcher.Constraint("DistanceX", 26, 3, 30, 3, Q("13 mm")))
sketch5.addConstraint(Sketcher.Constraint("DistanceX", 2, 3, 0, 3, Q("3.9 mm")))
sketch5.addConstraint(Sketcher.Constraint("DistanceX", 4, 3, 2, 3, Q("3.9 mm")))
sketch5.addConstraint(Sketcher.Constraint("DistanceX", 6, 3, 4, 3, Q("3.9 mm")))
sketch5.addConstraint(Sketcher.Constraint("DistanceX", 8, 3, 6, 3, Q("3.9 mm")))
sketch5.addConstraint(Sketcher.Constraint("DistanceY", 8, 3, 20, 3, Q("14.1 mm")))
sketch5.addConstraint(Sketcher.Constraint("DistanceX", 20, 3, 22, 3, Q("3.9 mm")))
sketch5.addConstraint(Sketcher.Constraint("DistanceX", 22, 3, 24, 3, Q("3.9 mm")))
sketch5.addConstraint(Sketcher.Constraint("DistanceX", 24, 3, 26, 3, Q("3.9 mm")))
sketch5.addConstraint(Sketcher.Constraint("DistanceX", 30, 3, 32, 3, Q("3.9 mm")))
sketch5.addConstraint(Sketcher.Constraint("DistanceX", 26, 3, 34, 3, Q("3.9 mm")))
sketch5.addConstraint(Sketcher.Constraint("DistanceX", 11, 2, 8, 1, Q("2.7 mm")))
sketch5.addConstraint(Sketcher.Constraint("DistanceX", 18, 1, 20, 3, Q("3.3 mm")))
sketch5.addConstraint(Sketcher.Constraint("DistanceX", -1, 1, 0, 3, Q("18.57 mm")))
sketch5.addConstraint(Sketcher.Constraint("DistanceY", 0, 3, -1, 1, Q("7.05 mm")))
sketch5.addConstraint(Sketcher.Constraint("DistanceX", 14, 3, -1, 1, Q("7.05 mm")))
sketch5.addConstraint(Sketcher.Constraint("DistanceY", 15, 2, 15, 1, Q("1.198914 mm")))
sketch5.addConstraint(Sketcher.Constraint("DistanceY", 10, 3, -1, 1, Q("6.988708 mm")))
sketch5.addConstraint(Sketcher.Constraint("DistanceX", 16, 3, -1, 1, Q("5.28202 mm")))
sketch5.addConstraint(Sketcher.Constraint("DistanceX", 10, 1, -1, 1, Q("1.51849 mm")))
sketch5.addConstraint(Sketcher.Constraint("DistanceY", 11, 2, -1, 1, Q("7.042272 mm")))
sketch5.addConstraint(Sketcher.Constraint("DistanceX", 13, 2, -1, 1, Q("4.890151 mm")))
sketch5.addConstraint(Sketcher.Constraint("DistanceY", 13, 2, -1, 1, Q("5.078279 mm")))
sketch5.addConstraint(Sketcher.Constraint("DistanceX", 16, 1, -1, 1, Q("4.886489 mm")))
sketch5.addConstraint(Sketcher.Constraint("DistanceY", -1, 1, 18, 1, Q("7.042508 mm")))
sketch5.addConstraint(Sketcher.Constraint("DistanceX", 12, 3, 10, 3, Q("4.37664 mm")))
sketch5.addConstraint(Sketcher.Constraint("DistanceY", 10, 3, 16, 3, Q("11.619341 mm")))
sketch5.addConstraint(Sketcher.Constraint("DistanceX", 12, 3, 18, 3, Q("4.381678 mm")))
sketch5.addConstraint(Sketcher.Constraint("DistanceX", 12, 3, 20, 3, Q("8.279321 mm")))
sketch5.addConstraint(Sketcher.Constraint("DistanceX", 17, 2, 16, 3, Q("0.395532 mm")))
sketch5.setExpression("Constraints[98]", "Params.sketch5_radius")
sketch5.setExpression("Constraints[99]", "Params.sketch5_width")
pad3 = body.newObject("PartDesign::Pad", "Pad002")
pad3.Profile = sketch5
pad3.setExpression("Length", "Params.pad3_length")

# Sketch on XY plane
sketch6 = body.newObject("Sketcher::SketchObject", "Sketch005")
sketch6.AttachmentSupport = (doc.getObject("XY_Plane"), [""])
sketch6.MapMode = "FlatFace"
sketch6.AttachmentOffset = App.Placement(Vector(0, 0, 1.6), App.Rotation())
sketch6.addGeometry(Part.Circle(Vector(8, 0, 0), Vector(0, 0, 1), 2.25), False)
sketch6.addConstraint(Sketcher.Constraint("PointOnObject", 0, 3, -1))
sketch6.addConstraint(Sketcher.Constraint("Diameter", 0, Q("4.5 mm")))
sketch6.addConstraint(Sketcher.Constraint("DistanceX", -1, 1, 0, 3, Q("8 mm")))
sketch6.setExpression("Constraints[1]", "Params.sketch6_diameter")
pad4 = body.newObject("PartDesign::Pad", "Pad003")
pad4.Profile = sketch6
pad4.setExpression("Length", "Params.pad4_length")

# Sketch on XY plane
sketch7 = body.newObject("Sketcher::SketchObject", "Sketch006")
sketch7.AttachmentSupport = (doc.getObject("XY_Plane"), [""])
sketch7.MapMode = "FlatFace"
sketch7.AttachmentOffset = App.Placement(Vector(0, 0, 6.5), App.Rotation())
sketch7.addGeometry(Part.Circle(Vector(8, 0, 0), Vector(0, 0, 1), 0.75), False)
sketch7.addConstraint(Sketcher.Constraint("PointOnObject", 0, 3, -1))
sketch7.addConstraint(Sketcher.Constraint("Diameter", 0, Q("1.5 mm")))
sketch7.addConstraint(Sketcher.Constraint("DistanceX", -1, 1, 0, 3, Q("8 mm")))
sketch7.setExpression("Constraints[1]", "Params.sketch7_diameter")
pocket3 = body.newObject("PartDesign::Pocket", "Pocket002")
pocket3.Profile = sketch7
pocket3.setExpression("Length", "Params.pocket3_length")

# Sketch on XY plane
sketch8 = body.newObject("Sketcher::SketchObject", "Sketch007")
sketch8.AttachmentSupport = (doc.getObject("XY_Plane"), [""])
sketch8.MapMode = "FlatFace"
sketch8.AttachmentOffset = App.Placement(Vector(0, 0, 1.6), App.Rotation())
sketch8.addGeometry(Part.Circle(Vector(42.049981, 0, 0), Vector(0, 0, 1), 2.475), False)
sketch8.addConstraint(Sketcher.Constraint("PointOnObject", 0, 3, -1))
sketch8.addConstraint(Sketcher.Constraint("Diameter", 0, Q("4.95 mm")))
sketch8.addConstraint(Sketcher.Constraint("DistanceX", -1, 1, 0, 3, Q("42.049981 mm")))
sketch8.setExpression("Constraints[1]", "Params.sketch8_diameter")
pad5 = body.newObject("PartDesign::Pad", "Pad004")
pad5.Profile = sketch8
pad5.setExpression("Length", "Params.pad5_length")

# Sketch on XY plane
sketch9 = body.newObject("Sketcher::SketchObject", "Sketch008")
sketch9.AttachmentSupport = (doc.getObject("XY_Plane"), [""])
sketch9.MapMode = "FlatFace"
sketch9.AttachmentOffset = App.Placement(Vector(0, 0, 8.1), App.Rotation())
sketch9.addGeometry(Part.Circle(Vector(42.049981, 0, 0), Vector(0, 0, 1), 0.75), False)
sketch9.addConstraint(Sketcher.Constraint("PointOnObject", 0, 3, -1))
sketch9.addConstraint(Sketcher.Constraint("Diameter", 0, Q("1.5 mm")))
sketch9.addConstraint(Sketcher.Constraint("DistanceX", -1, 1, 0, 3, Q("42.049981 mm")))
sketch9.setExpression("Constraints[1]", "Params.sketch9_diameter")
pocket4 = body.newObject("PartDesign::Pocket", "Pocket003")
pocket4.Profile = sketch9
pocket4.setExpression("Length", "Params.pocket4_length")
doc.recompute()

fillet = body.newObject("PartDesign::Fillet", "Fillet")
fillet.Base = (pocket4, edges_at(pocket4, [(39.575, 0, 8.1), (5.75, 0, 6.5)]))
fillet.setExpression("Radius", "Params.fillet_radius")

# Sketch on XY plane
sketch10 = body.newObject("Sketcher::SketchObject", "Sketch009")
sketch10.AttachmentSupport = (doc.getObject("XY_Plane"), [""])
sketch10.MapMode = "FlatFace"
sketch10.addGeometry(Part.Circle(Vector(38.899981, -2.2, 0), Vector(0, 0, 1), 0.95), False)
sketch10.addConstraint(Sketcher.Constraint("Diameter", 0, Q("1.9 mm")))
sketch10.addConstraint(Sketcher.Constraint("DistanceY", 0, 3, -1, 1, Q("2.2 mm")))
sketch10.addConstraint(Sketcher.Constraint("DistanceX", -1, 1, 0, 3, Q("38.899981 mm")))
sketch10.setExpression("Constraints[0]", "Params.sketch10_diameter")
pad6 = body.newObject("PartDesign::Pad", "Pad005")
pad6.Profile = sketch10
pad6.setExpression("Length", "Params.pad6_length")
pad6.Reversed = True
doc.recompute()

fillet2 = body.newObject("PartDesign::Fillet", "Fillet001")
fillet2.Base = (pad6, edges_at(pad6, [(37.95, -2.2, -2.2)]))
fillet2.setExpression("Radius", "Params.fillet2_radius")

# Sketch on XY plane
sketch11 = body.newObject("Sketcher::SketchObject", "Sketch010")
sketch11.AttachmentSupport = (doc.getObject("XY_Plane"), [""])
sketch11.MapMode = "FlatFace"
sketch11.AttachmentOffset = App.Placement(Vector(0, 0, 1.6), App.Rotation())
sketch11.addGeometry(Part.LineSegment(Vector(-3.1, 1.55, 0), Vector(-3.1, -1.55, 0)), False)
sketch11.addGeometry(Part.LineSegment(Vector(-3.1, -1.55, 0), Vector(3.1, -1.55, 0)), False)
sketch11.addGeometry(Part.LineSegment(Vector(3.1, -1.55, 0), Vector(3.1, 1.55, 0)), False)
sketch11.addGeometry(Part.LineSegment(Vector(3.1, 1.55, 0), Vector(-3.1, 1.55, 0)), False)
sketch11.addConstraint(Sketcher.Constraint("Coincident", 0, 2, 1, 1))
sketch11.addConstraint(Sketcher.Constraint("Coincident", 1, 2, 2, 1))
sketch11.addConstraint(Sketcher.Constraint("Coincident", 2, 2, 3, 1))
sketch11.addConstraint(Sketcher.Constraint("Coincident", 3, 2, 0, 1))
sketch11.addConstraint(Sketcher.Constraint("Vertical", 0))
sketch11.addConstraint(Sketcher.Constraint("Horizontal", 1))
sketch11.addConstraint(Sketcher.Constraint("Vertical", 2))
sketch11.addConstraint(Sketcher.Constraint("Horizontal", 3))
sketch11.addConstraint(Sketcher.Constraint("Symmetric", 0, 2, 2, 2, -1, 1))
sketch11.addConstraint(Sketcher.Constraint("DistanceX", 1, 1, 1, 2, Q("6.2 mm")))
sketch11.addConstraint(Sketcher.Constraint("DistanceY", 0, 2, 0, 1, Q("3.1 mm")))
sketch11.setExpression("Constraints[9]", "Params.sketch11_width")
sketch11.setExpression("Constraints[10]", "Params.sketch11_height")
pocket5 = body.newObject("PartDesign::Pocket", "Pocket004")
pocket5.Profile = sketch11
pocket5.setExpression("Length", "Params.pocket5_length")
body2 = doc.addObject("PartDesign::Body", "Body001")
doc.recompute()

body.Placement = App.Placement(Vector(0, 0, 0), App.Rotation(Vector(1, 0, 0), 270))
boolean = body2.newObject("PartDesign::Boolean", "Boolean")
boolean.Type = "Fuse"
boolean.addObjects([body])
body3 = doc.addObject("PartDesign::Body", "Body002")
doc.recompute()

body2.Placement = App.Placement(Vector(27.8, -51, -6.5), App.Rotation(Vector(0, 0, 1), 90))
boolean2 = body3.newObject("PartDesign::Boolean", "Boolean001")
boolean2.Type = "Fuse"
boolean2.addObjects([body2])

doc.recompute()
